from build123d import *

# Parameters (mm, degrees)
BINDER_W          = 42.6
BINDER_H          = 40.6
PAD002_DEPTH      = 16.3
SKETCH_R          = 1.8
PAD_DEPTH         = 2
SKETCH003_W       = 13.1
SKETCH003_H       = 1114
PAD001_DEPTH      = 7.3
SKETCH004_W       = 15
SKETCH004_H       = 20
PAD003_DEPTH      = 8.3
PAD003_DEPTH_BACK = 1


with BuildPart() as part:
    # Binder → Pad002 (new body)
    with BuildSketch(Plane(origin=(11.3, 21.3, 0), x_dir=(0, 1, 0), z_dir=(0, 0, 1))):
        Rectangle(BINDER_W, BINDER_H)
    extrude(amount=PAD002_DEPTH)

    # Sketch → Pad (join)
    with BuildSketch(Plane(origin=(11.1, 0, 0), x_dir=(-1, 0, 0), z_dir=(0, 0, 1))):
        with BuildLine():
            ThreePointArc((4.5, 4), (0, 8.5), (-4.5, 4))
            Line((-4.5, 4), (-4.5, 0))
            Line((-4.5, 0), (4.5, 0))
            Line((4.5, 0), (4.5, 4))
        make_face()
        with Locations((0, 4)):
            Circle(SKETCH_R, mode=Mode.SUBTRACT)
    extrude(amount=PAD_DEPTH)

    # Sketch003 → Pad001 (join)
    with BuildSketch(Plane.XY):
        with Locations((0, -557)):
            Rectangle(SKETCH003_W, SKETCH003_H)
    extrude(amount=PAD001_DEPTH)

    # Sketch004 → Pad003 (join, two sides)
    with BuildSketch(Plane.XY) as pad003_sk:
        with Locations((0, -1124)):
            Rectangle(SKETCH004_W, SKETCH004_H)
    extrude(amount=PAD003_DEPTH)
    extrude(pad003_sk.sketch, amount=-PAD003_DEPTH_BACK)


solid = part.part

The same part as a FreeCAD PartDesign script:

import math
import FreeCAD as App
import Part
import Sketcher
from FreeCAD import Vector
Q = App.Units.Quantity


def add_polygon(sketch, points):
    """Adds a closed chain of lines whose ends are joined by coincident constraints."""
    first, n = sketch.GeometryCount, len(points)
    for a, b in zip(points, points[1:] + points[:1]):
        sketch.addGeometry(Part.LineSegment(App.Vector(*a, 0), App.Vector(*b, 0)), False)
    for i in range(n):
        sketch.addConstraint(Sketcher.Constraint("Coincident", first + i, 2, first + (i + 1) % n, 1))

doc = App.newDocument("Part")
body = doc.addObject("PartDesign::Body", "Body")

# Sketch on XY plane
sketch1 = body.newObject("Sketcher::SketchObject", "Sketch")
sketch1.AttachmentSupport = (doc.getObject("XY_Plane"), [""])
sketch1.MapMode = "FlatFace"
add_polygon(sketch1, [(-9, 0), (32, 0), (32, 43), (-9, 43)])  # lines 0-3
sketch1.addConstraint([
    Sketcher.Constraint("Horizontal", 0),
    Sketcher.Constraint("Vertical", 1),
    Sketcher.Constraint("Horizontal", 2),
    Sketcher.Constraint("Vertical", 3),
    Sketcher.Constraint("PointOnObject", 0, 2, -1),
    Sketcher.Constraint("DistanceX", 0, 1, 0, 2, Q("40.6 mm")),
    Sketcher.Constraint("DistanceY", 1, 1, 1, 2, Q("42.6 mm")),
    Sketcher.Constraint("DistanceX", 2, 2, -1, 1, Q("9 mm")),
])
pad1 = body.newObject("PartDesign::Pad", "Pad")
pad1.Profile = sketch1
pad1.Length = 16.3

# Sketch on XY plane
sketch2 = body.newObject("Sketcher::SketchObject", "Sketch001")
sketch2.AttachmentSupport = (doc.getObject("XY_Plane"), [""])
sketch2.MapMode = "FlatFace"
sketch2.addGeometry([
    Part.ArcOfCircle(Part.Circle(Vector(11.1, -4, 0), Vector(0, 0, 1), 4.5), math.radians(180), math.radians(360)),  # 0
    Part.LineSegment(Vector(15.6, -4, 0), Vector(15.6, 0, 0)),  # 1
    Part.LineSegment(Vector(15.6, 0, 0), Vector(6.6, 0, 0)),  # 2
    Part.LineSegment(Vector(6.6, 0, 0), Vector(6.6, -4, 0)),  # 3
    Part.Circle(Vector(11.1, -4, 0), Vector(0, 0, 1), 1.8),  # 4
], False)
sketch2.addConstraint([
    Sketcher.Constraint("Tangent", 0, 2, 1, 1),
    Sketcher.Constraint("Coincident", 1, 2, 2, 1),
    Sketcher.Constraint("Coincident", 2, 2, 3, 1),
    Sketcher.Constraint("Tangent", 3, 2, 0, 1),
    Sketcher.Constraint("Vertical", 1),
    Sketcher.Constraint("Horizontal", 2),
    Sketcher.Constraint("Vertical", 3),
    Sketcher.Constraint("Coincident", 4, 3, 0, 3),
    Sketcher.Constraint("PointOnObject", 1, 2, -1),
    Sketcher.Constraint("Diameter", 4, Q("3.6 mm")),
    Sketcher.Constraint("Radius", 0, Q("4.5 mm")),
    Sketcher.Constraint("DistanceY", 1, 1, 1, 2, Q("4 mm")),
    Sketcher.Constraint("DistanceX", -1, 1, 0, 3, Q("11.1 mm")),
])
pad2 = body.newObject("PartDesign::Pad", "Pad001")
pad2.Profile = sketch2
pad2.Length = 2

# Sketch on XY plane
sketch3 = body.newObject("Sketcher::SketchObject", "Sketch002")
sketch3.AttachmentSupport = (doc.getObject("XY_Plane"), [""])
sketch3.MapMode = "FlatFace"
add_polygon(sketch3, [(-7, 0), (-7, -1114), (7, -1114), (7, 0)])  # lines 0-3
sketch3.addConstraint([
    Sketcher.Constraint("Vertical", 0),
    Sketcher.Constraint("Horizontal", 1),
    Sketcher.Constraint("Vertical", 2),
    Sketcher.Constraint("Horizontal", 3),
    Sketcher.Constraint("Symmetric", 2, 2, 3, 2, -1, 1),
    Sketcher.Constraint("DistanceY", 0, 2, 0, 1, Q("1114 mm")),
    Sketcher.Constraint("DistanceX", 1, 1, 1, 2, Q("13.1 mm")),
])
pad3 = body.newObject("PartDesign::Pad", "Pad002")
pad3.Profile = sketch3
pad3.Length = 7.3

# Sketch on XY plane
sketch4 = body.newObject("Sketcher::SketchObject", "Sketch003")
sketch4.AttachmentSupport = (doc.getObject("XY_Plane"), [""])
sketch4.MapMode = "FlatFace"
add_polygon(sketch4, [(-8, -1114), (-8, -1134), (8, -1134), (8, -1114)])  # lines 0-3
sketch4.addConstraint([
    Sketcher.Constraint("Vertical", 0),
    Sketcher.Constraint("Horizontal", 1),
    Sketcher.Constraint("Vertical", 2),
    Sketcher.Constraint("Horizontal", 3),
    Sketcher.Constraint("DistanceX", 1, 1, 1, 2, Q("15 mm")),
    Sketcher.Constraint("DistanceY", 0, 2, 0, 1, Q("20 mm")),
    Sketcher.Constraint("DistanceY", 0, 2, -1, 1, Q("1134 mm")),
    Sketcher.Constraint("DistanceX", 0, 2, -1, 1, Q("7.5 mm")),
])
pad4 = body.newObject("PartDesign::Pad", "Pad003")
pad4.Profile = sketch4
pad4.Type = "TwoLengths"
pad4.Length = 8.3
pad4.Length2 = 1

doc.recompute()
